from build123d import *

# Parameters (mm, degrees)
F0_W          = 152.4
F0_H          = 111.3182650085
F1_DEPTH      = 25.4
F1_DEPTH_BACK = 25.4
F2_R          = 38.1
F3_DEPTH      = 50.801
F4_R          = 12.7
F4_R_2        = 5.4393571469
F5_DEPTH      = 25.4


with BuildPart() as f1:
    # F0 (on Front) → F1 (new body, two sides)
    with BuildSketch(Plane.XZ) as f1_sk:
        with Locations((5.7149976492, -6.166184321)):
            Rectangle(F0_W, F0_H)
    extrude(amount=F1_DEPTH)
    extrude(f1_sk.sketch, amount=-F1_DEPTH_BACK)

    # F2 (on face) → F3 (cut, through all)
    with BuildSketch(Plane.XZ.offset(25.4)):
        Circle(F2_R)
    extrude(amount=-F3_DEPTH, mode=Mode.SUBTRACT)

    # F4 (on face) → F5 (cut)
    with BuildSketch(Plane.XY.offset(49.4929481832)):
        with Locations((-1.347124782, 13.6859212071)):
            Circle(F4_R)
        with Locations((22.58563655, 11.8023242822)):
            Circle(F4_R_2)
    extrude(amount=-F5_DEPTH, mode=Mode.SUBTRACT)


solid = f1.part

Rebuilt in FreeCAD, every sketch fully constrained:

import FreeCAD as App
import Part
import Sketcher
from FreeCAD import Vector
Q = App.Units.Quantity

doc = App.newDocument("Part")
body = doc.addObject("PartDesign::Body", "Body")

# Sketch on XZ plane
sketch1 = body.newObject("Sketcher::SketchObject", "Sketch")
sketch1.AttachmentSupport = (doc.getObject("XZ_Plane"), [""])
sketch1.MapMode = "FlatFace"
sketch1.addGeometry([
    Part.LineSegment(Vector(-70, 49, 0), Vector(-70, -62, 0)),
    Part.LineSegment(Vector(-70, -62, 0), Vector(82, -62, 0)),
    Part.LineSegment(Vector(82, -62, 0), Vector(82, 49, 0)),
    Part.LineSegment(Vector(82, 49, 0), Vector(-70, 49, 0)),
], False)
sketch1.addConstraint([
    Sketcher.Constraint("Coincident", 0, 2, 1, 1),
    Sketcher.Constraint("Coincident", 1, 2, 2, 1),
    Sketcher.Constraint("Coincident", 2, 2, 3, 1),
    Sketcher.Constraint("Coincident", 3, 2, 0, 1),
    Sketcher.Constraint("Vertical", 0),
    Sketcher.Constraint("Horizontal", 1),
    Sketcher.Constraint("Vertical", 2),
    Sketcher.Constraint("Horizontal", 3),
    Sketcher.Constraint("DistanceX", 1, 1, 1, 2, Q("6 in")),
    Sketcher.Constraint("DistanceX", 0, 2, -1, 1, Q("2.7750001 in")),
    Sketcher.Constraint("DistanceY", 0, 2, 0, 1, 111.318265),
    Sketcher.Constraint("DistanceY", -1, 1, 2, 2, 49.492948),
])
pad1 = body.newObject("PartDesign::Pad", "Pad")
pad1.Profile = sketch1
pad1.Type = "TwoLengths"
pad1.Length = Q("1 in")
pad1.Length2 = Q("1 in")

# Sketch on XZ plane
sketch2 = body.newObject("Sketcher::SketchObject", "Sketch001")
sketch2.AttachmentSupport = (doc.getObject("XZ_Plane"), [""])
sketch2.MapMode = "FlatFace"
sketch2.AttachmentOffset = App.Placement(Vector(0, 0, 1 * 25.4), App.Rotation())
sketch2.addGeometry(Part.Circle(Vector(0, 0, 0), Vector(0, 0, 1), 38), False)
sketch2.addConstraint([
    Sketcher.Constraint("Coincident", 0, 3, -1, 1),
    Sketcher.Constraint("Diameter", 0, Q("3 in")),
])
pocket1 = body.newObject("PartDesign::Pocket", "Pocket")
pocket1.Profile = sketch2
pocket1.Type = "ThroughAll"

# Sketch on XY plane
sketch3 = body.newObject("Sketcher::SketchObject", "Sketch002")
sketch3.AttachmentSupport = (doc.getObject("XY_Plane"), [""])
sketch3.MapMode = "FlatFace"
sketch3.AttachmentOffset = App.Placement(Vector(0, 0, 49.492948), App.Rotation())
sketch3.addGeometry([
    Part.Circle(Vector(-1, 14, 0), Vector(0, 0, 1), 13),
    Part.Circle(Vector(23, 12, 0), Vector(0, 0, 1), 5),
], False)
sketch3.addConstraint([
    Sketcher.Constraint("Diameter", 0, Q("1 in")),
    Sketcher.Constraint("Diameter", 1, 10.878714),
    Sketcher.Constraint("DistanceY", -1, 1, 0, 3, 13.685921),
    Sketcher.Constraint("DistanceX", 0, 3, 1, 3, 23.932761),
    Sketcher.Constraint("DistanceX", 0, 3, -1, 1, 1.347125),
    Sketcher.Constraint("DistanceY", -1, 1, 1, 3, 11.802324),
])
pocket2 = body.newObject("PartDesign::Pocket", "Pocket001")
pocket2.Profile = sketch3
pocket2.Length = Q("1 in")

doc.recompute()
